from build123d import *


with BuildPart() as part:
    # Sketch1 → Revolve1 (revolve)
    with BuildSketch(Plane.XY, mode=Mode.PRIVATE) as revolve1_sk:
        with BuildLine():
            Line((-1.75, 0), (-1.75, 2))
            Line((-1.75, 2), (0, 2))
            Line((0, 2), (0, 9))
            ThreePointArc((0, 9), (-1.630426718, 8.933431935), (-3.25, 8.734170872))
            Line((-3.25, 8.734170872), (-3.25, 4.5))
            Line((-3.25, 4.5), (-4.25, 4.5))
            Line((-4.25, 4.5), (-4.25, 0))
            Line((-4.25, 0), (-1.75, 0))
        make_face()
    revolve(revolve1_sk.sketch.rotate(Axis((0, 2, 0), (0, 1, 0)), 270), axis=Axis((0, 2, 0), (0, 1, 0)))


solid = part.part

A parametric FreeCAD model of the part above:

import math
import FreeCAD as App
import Part
import Sketcher

V = App.Vector
Q = App.Units.Quantity

doc = App.newDocument("Part")
body = doc.addObject("PartDesign::Body", "Body")

# Sketch on XY plane
sketch1 = doc.addObject("Sketcher::SketchObject", "Sketch")
body.addObject(sketch1)
sketch1.AttachmentSupport = (doc.XY_Plane, [""])
sketch1.MapMode = "FlatFace"
sketch1.addGeometry([
    Part.LineSegment(V(-1.8, 0, 0), V(-1.8, 2, 0)),  # 0
    Part.LineSegment(V(-1.8, 2, 0), V(0, 2, 0)),  # 1
    Part.LineSegment(V(0, 2, 0), V(0, 9, 0)),  # 2
    Part.ArcOfCircle(Part.Circle(V(0, -11, 0), V(0, 0, 1), 20), math.radians(90), math.radians(99.35)),  # 3
    Part.LineSegment(V(-3.2, 8.7, 0), V(-3.2, 4.5, 0)),  # 4
    Part.LineSegment(V(-3.2, 4.5, 0), V(-4.2, 4.5, 0)),  # 5
    Part.LineSegment(V(-4.2, 4.5, 0), V(-4.2, 0, 0)),  # 6
    Part.LineSegment(V(-4.2, 0, 0), V(-1.8, 0, 0)),  # 7
], False)
sketch1.addConstraint([
    Sketcher.Constraint("Coincident", 0, 2, 1, 1),
    Sketcher.Constraint("Coincident", 1, 2, 2, 1),
    Sketcher.Constraint("Coincident", 2, 2, 3, 1),
    Sketcher.Constraint("Coincident", 3, 2, 4, 1),
    Sketcher.Constraint("Coincident", 4, 2, 5, 1),
    Sketcher.Constraint("Coincident", 5, 2, 6, 1),
    Sketcher.Constraint("Coincident", 6, 2, 7, 1),
    Sketcher.Constraint("Coincident", 7, 2, 0, 1),
    Sketcher.Constraint("Vertical", 0),
    Sketcher.Constraint("Horizontal", 1),
    Sketcher.Constraint("Vertical", 2),
    Sketcher.Constraint("Vertical", 4),
    Sketcher.Constraint("Horizontal", 5),
    Sketcher.Constraint("Vertical", 6),
    Sketcher.Constraint("Horizontal", 7),
    Sketcher.Constraint("PointOnObject", 3, 3, -2),
    Sketcher.Constraint("PointOnObject", 1, 2, -2),
    Sketcher.Constraint("PointOnObject", 6, 2, -1),
    Sketcher.Constraint("Radius", 3, Q("20 mm")),
    Sketcher.Constraint("DistanceX", 5, 2, 5, 1, Q("1 mm")),
    Sketcher.Constraint("DistanceY", 0, 1, 0, 2, Q("2 mm")),
    Sketcher.Constraint("DistanceY", 2, 1, 2, 2, Q("7 mm")),
    Sketcher.Constraint("DistanceX", 7, 1, 7, 2, Q("2.5 mm")),
    Sketcher.Constraint("DistanceY", 6, 2, 6, 1, Q("4.5 mm")),
    Sketcher.Constraint("DistanceX", 1, 1, 1, 2, Q("1.75 mm")),
])
revolution = doc.addObject("PartDesign::Revolution", "Revolution")
body.addObject(revolution)
revolution.Profile = sketch1
revolution.ReferenceAxis = (sketch1, ["V_Axis"])
revolution.Angle = 360

doc.recompute()
